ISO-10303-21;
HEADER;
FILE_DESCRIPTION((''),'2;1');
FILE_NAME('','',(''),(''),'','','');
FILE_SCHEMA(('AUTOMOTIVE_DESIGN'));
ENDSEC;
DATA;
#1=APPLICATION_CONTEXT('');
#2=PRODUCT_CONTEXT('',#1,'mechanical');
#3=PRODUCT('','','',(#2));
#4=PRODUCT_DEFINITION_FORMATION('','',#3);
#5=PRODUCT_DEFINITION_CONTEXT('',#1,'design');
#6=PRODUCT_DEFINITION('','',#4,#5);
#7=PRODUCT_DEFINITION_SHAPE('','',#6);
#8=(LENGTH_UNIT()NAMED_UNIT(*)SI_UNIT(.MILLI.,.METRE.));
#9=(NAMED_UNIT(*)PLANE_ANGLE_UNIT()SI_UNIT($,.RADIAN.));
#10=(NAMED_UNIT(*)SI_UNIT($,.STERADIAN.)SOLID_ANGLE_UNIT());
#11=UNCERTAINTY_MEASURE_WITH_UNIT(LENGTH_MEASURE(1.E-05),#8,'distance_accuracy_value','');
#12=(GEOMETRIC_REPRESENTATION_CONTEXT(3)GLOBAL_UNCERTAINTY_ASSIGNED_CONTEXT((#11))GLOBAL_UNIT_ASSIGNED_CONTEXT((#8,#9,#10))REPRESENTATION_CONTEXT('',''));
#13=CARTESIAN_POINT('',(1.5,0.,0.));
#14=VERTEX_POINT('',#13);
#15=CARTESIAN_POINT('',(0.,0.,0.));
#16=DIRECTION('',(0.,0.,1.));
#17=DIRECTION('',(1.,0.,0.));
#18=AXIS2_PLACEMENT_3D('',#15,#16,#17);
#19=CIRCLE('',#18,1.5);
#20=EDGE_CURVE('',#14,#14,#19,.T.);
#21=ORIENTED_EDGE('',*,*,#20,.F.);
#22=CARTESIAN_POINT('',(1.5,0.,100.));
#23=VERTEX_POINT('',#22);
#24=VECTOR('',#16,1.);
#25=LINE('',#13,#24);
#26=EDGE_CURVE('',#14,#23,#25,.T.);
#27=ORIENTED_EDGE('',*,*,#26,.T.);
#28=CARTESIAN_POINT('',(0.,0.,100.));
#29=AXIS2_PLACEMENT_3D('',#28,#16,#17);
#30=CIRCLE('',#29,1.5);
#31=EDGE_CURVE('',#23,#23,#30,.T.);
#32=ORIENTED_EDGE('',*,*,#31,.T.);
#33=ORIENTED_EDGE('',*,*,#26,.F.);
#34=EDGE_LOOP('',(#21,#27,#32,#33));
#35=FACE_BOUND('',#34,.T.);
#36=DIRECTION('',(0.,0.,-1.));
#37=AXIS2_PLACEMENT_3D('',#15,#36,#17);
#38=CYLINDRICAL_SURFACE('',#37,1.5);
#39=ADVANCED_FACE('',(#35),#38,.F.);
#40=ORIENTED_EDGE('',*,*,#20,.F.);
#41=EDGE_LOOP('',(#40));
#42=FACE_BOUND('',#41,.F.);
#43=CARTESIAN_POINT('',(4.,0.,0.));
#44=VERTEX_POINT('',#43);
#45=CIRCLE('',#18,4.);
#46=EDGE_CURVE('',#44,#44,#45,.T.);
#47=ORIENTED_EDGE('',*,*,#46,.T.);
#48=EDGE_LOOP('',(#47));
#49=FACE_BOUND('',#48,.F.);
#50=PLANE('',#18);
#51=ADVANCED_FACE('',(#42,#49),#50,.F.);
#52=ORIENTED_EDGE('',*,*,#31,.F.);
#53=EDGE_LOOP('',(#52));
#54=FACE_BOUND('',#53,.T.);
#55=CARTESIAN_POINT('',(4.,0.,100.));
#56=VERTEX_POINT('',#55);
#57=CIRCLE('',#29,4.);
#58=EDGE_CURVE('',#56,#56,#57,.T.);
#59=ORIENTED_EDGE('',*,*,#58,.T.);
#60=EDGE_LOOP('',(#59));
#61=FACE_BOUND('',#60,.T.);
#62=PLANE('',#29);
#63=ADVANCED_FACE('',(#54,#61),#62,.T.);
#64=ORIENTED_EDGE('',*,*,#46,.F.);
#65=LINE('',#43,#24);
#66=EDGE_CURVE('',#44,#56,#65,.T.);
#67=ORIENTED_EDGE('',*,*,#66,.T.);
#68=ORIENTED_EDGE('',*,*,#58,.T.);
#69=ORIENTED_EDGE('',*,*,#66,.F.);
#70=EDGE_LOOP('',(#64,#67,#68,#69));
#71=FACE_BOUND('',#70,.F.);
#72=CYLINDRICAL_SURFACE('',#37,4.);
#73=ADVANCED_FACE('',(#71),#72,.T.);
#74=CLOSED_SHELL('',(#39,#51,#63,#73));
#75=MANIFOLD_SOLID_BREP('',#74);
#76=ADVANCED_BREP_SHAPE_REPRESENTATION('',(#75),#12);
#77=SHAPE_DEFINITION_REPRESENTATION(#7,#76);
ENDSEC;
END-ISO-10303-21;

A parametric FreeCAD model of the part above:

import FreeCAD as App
import Part
import Sketcher

V = App.Vector

doc = App.newDocument("Part")
body = doc.addObject("PartDesign::Body", "Body")

# Sketch on XY plane
sketch1 = body.newObject("Sketcher::SketchObject", "Sketch")
sketch1.AttachmentSupport = (doc.getObject("XY_Plane"), [""])
sketch1.MapMode = "FlatFace"
sketch1.addGeometry(Part.Circle(V(0, 0, 0), V(0, 0, 1), 4), False)
sketch1.addGeometry(Part.Circle(V(0, 0, 0), V(0, 0, 1), 1.5), False)
sketch1.addConstraint(Sketcher.Constraint("Coincident", 0, 3, -1, 1))
sketch1.addConstraint(Sketcher.Constraint("Coincident", 1, 3, -1, 1))
sketch1.addConstraint(Sketcher.Constraint("Diameter", 0, 8.0))
sketch1.addConstraint(Sketcher.Constraint("Diameter", 1, 3.0))
pad1 = body.newObject("PartDesign::Pad", "Pad")
pad1.Profile = sketch1
pad1.Length = 100

doc.recompute()
